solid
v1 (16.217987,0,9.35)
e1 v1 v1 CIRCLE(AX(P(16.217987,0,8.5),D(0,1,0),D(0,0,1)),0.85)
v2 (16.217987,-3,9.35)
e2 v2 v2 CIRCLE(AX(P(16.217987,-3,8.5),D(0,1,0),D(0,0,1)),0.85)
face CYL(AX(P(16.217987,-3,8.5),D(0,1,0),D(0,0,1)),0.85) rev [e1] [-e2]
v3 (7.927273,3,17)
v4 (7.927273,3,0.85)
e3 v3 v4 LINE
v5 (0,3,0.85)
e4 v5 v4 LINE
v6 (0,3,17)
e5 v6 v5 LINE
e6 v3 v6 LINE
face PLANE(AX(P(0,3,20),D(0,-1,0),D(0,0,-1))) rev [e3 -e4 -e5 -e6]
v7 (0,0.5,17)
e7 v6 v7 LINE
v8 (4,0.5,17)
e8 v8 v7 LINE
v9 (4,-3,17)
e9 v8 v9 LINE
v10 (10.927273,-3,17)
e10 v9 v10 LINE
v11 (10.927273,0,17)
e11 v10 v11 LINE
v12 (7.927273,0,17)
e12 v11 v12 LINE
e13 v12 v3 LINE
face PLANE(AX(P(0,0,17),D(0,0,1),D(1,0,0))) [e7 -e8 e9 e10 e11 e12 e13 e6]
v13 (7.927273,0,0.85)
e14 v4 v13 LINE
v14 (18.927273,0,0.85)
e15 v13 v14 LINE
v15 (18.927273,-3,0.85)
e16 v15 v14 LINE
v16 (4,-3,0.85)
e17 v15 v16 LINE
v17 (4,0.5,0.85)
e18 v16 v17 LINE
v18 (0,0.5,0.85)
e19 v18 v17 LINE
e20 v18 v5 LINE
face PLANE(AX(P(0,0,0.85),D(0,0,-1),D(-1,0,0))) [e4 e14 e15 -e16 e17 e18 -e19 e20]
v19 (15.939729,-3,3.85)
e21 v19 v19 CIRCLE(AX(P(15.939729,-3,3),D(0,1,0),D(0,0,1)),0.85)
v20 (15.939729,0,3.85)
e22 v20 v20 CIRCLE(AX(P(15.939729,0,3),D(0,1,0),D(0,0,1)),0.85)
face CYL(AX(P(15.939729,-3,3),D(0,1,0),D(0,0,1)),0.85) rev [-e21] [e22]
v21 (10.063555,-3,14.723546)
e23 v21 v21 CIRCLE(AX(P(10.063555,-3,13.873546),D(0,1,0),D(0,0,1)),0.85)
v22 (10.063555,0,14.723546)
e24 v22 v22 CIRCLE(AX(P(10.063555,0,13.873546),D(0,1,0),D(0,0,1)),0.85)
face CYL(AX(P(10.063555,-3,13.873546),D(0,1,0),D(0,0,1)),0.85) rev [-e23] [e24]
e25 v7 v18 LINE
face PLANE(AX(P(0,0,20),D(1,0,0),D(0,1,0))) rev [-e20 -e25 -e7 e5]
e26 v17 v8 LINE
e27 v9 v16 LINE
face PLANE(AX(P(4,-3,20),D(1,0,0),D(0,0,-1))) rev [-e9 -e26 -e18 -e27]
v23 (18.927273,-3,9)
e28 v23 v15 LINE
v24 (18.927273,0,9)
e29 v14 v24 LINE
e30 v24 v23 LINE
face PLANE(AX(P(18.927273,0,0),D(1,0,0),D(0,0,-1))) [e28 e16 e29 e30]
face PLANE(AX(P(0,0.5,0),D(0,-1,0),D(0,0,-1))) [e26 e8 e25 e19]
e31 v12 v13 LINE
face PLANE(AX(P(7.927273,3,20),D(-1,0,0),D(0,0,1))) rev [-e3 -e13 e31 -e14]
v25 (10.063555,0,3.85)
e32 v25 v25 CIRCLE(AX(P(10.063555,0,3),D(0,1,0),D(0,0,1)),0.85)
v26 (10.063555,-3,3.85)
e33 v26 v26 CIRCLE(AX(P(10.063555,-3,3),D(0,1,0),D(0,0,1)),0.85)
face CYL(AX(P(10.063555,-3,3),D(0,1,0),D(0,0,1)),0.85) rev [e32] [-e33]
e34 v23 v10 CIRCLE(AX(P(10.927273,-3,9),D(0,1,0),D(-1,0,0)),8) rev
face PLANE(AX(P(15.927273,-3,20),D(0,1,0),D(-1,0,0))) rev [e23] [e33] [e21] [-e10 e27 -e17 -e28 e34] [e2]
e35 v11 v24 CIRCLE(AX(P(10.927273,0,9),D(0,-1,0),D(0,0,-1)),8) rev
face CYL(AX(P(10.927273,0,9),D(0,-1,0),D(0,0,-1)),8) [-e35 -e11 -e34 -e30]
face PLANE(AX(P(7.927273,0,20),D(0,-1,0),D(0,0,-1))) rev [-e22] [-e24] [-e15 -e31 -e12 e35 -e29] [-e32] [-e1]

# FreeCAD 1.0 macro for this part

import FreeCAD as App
import Part
import Sketcher
from FreeCAD import Vector
Q = App.Units.Quantity


def edges_at(feature, points):
    """Names of the edges that pass closest to the given points."""
    edges = feature.Shape.Edges
    near = lambda p: min(range(len(edges)), key=lambda i: edges[i].distToShape(Part.Vertex(*p))[0])
    return sorted({f"Edge{near(p) + 1}" for p in points})

doc = App.newDocument("Part")
body = doc.addObject("PartDesign::Body", "Body")

sketch1 = body.newObject("Sketcher::SketchObject", "Sketch")
sketch1.AttachmentSupport = (doc.getObject("XY_Plane"), [""])
sketch1.MapMode = "FlatFace"
sketch1.addGeometry([
    Part.LineSegment(Vector(0, 3, 0), Vector(0, 0, 0)),
    Part.LineSegment(Vector(0, 0, 0), Vector(4, 0, 0)),
    Part.LineSegment(Vector(4, 0, 0), Vector(4, -3, 0)),
    Part.LineSegment(Vector(4, -3, 0), Vector(15.9, -3, 0)),
    Part.LineSegment(Vector(15.9, -3, 0), Vector(15.9, 0, 0)),
    Part.LineSegment(Vector(15.9, 0, 0), Vector(7.9, 0, 0)),
    Part.LineSegment(Vector(7.9, 0, 0), Vector(7.9, 3, 0)),
    Part.LineSegment(Vector(7.9, 3, 0), Vector(0, 3, 0)),
], False)
sketch1.addConstraint([
    Sketcher.Constraint("Coincident", 0, 2, 1, 1),
    Sketcher.Constraint("Coincident", 1, 2, 2, 1),
    Sketcher.Constraint("Coincident", 2, 2, 3, 1),
    Sketcher.Constraint("Coincident", 3, 2, 4, 1),
    Sketcher.Constraint("Coincident", 4, 2, 5, 1),
    Sketcher.Constraint("Coincident", 5, 2, 6, 1),
    Sketcher.Constraint("Coincident", 6, 2, 7, 1),
    Sketcher.Constraint("Coincident", 7, 2, 0, 1),
    Sketcher.Constraint("Vertical", 0),
    Sketcher.Constraint("Horizontal", 1),
    Sketcher.Constraint("Vertical", 2),
    Sketcher.Constraint("Horizontal", 3),
    Sketcher.Constraint("Vertical", 4),
    Sketcher.Constraint("Horizontal", 5),
    Sketcher.Constraint("Vertical", 6),
    Sketcher.Constraint("Horizontal", 7),
    Sketcher.Constraint("Coincident", 0, 2, -1, 1),
    Sketcher.Constraint("PointOnObject", 4, 2, -1),
    Sketcher.Constraint("Equal", 0, 2),
    Sketcher.Constraint("DistanceX", 1, 1, 1, 2, Q("4 mm")),
    Sketcher.Constraint("DistanceX", 5, 2, 5, 1, Q("8 mm")),
    Sketcher.Constraint("DistanceY", 0, 2, 0, 1, Q("3 mm")),
    Sketcher.Constraint("DistanceX", 3, 1, 3, 2, Q("11.927273 mm")),
])
pad1 = body.newObject("PartDesign::Pad", "Pad")
pad1.Profile = sketch1
pad1.Length = 20

sketch2 = body.newObject("Sketcher::SketchObject", "Sketch001")
sketch2.AttachmentSupport = (doc.getObject("XZ_Plane"), [""])
sketch2.MapMode = "FlatFace"
sketch2.addGeometry([
    Part.LineSegment(Vector(8, 12, 0), Vector(8, 20, 0)),
    Part.LineSegment(Vector(8, 20, 0), Vector(16, 20, 0)),
    Part.LineSegment(Vector(16, 20, 0), Vector(16, 12, 0)),
    Part.LineSegment(Vector(16, 12, 0), Vector(8, 12, 0)),
], False)
sketch2.addConstraint([
    Sketcher.Constraint("Coincident", 0, 2, 1, 1),
    Sketcher.Constraint("Coincident", 1, 2, 2, 1),
    Sketcher.Constraint("Coincident", 2, 2, 3, 1),
    Sketcher.Constraint("Coincident", 3, 2, 0, 1),
    Sketcher.Constraint("Vertical", 0),
    Sketcher.Constraint("Horizontal", 1),
    Sketcher.Constraint("Vertical", 2),
    Sketcher.Constraint("Horizontal", 3),
    Sketcher.Constraint("Equal", 3, 0),
    Sketcher.Constraint("DistanceX", 1, 1, 1, 2, Q("8 mm")),
    Sketcher.Constraint("DistanceY", -1, 1, 0, 2, Q("20 mm")),
    Sketcher.Constraint("DistanceX", -1, 1, 0, 2, Q("7.927273 mm")),
])
pocket1 = body.newObject("PartDesign::Pocket", "Pocket")
pocket1.Profile = sketch2
pocket1.Length = 10
pocket1.Reversed = True

sketch3 = body.newObject("Sketcher::SketchObject", "Sketch002")
sketch3.AttachmentSupport = (doc.getObject("XZ_Plane"), [""])
sketch3.MapMode = "FlatFace"
sketch3.addGeometry([
    Part.Circle(Vector(11.9, 3, 0), Vector(0, 0, 1), 1),
    Part.Circle(Vector(11.9, 9, 0), Vector(0, 0, 1), 1),
], False)
sketch3.addConstraint([
    Sketcher.Constraint("Equal", 0, 1),
    Sketcher.Constraint("Vertical", 0, 3, 1, 3),
    Sketcher.Constraint("Diameter", 0, Q("2 mm")),
    Sketcher.Constraint("DistanceY", -1, 1, 0, 3, Q("3 mm")),
    Sketcher.Constraint("DistanceY", -1, 1, 1, 3, Q("9 mm")),
    Sketcher.Constraint("DistanceX", -1, 1, 0, 3, Q("11.939729 mm")),
])
pocket2 = body.newObject("PartDesign::Pocket", "Pocket001")
pocket2.Profile = sketch3
pocket2.Length = 10
pocket2.Reversed = True

sketch4 = body.newObject("Sketcher::SketchObject", "Sketch003")
sketch4.AttachmentSupport = (doc.getObject("XZ_Plane"), [""])
sketch4.MapMode = "FlatFace"
sketch4.addGeometry([
    Part.LineSegment(Vector(0, 20, 0), Vector(0, 0, 0)),
    Part.LineSegment(Vector(0, 0, 0), Vector(4, 0, 0)),
    Part.LineSegment(Vector(4, 0, 0), Vector(4, 20, 0)),
    Part.LineSegment(Vector(4, 20, 0), Vector(0, 20, 0)),
], False)
sketch4.addConstraint([
    Sketcher.Constraint("Coincident", 0, 2, 1, 1),
    Sketcher.Constraint("Coincident", 1, 2, 2, 1),
    Sketcher.Constraint("Coincident", 2, 2, 3, 1),
    Sketcher.Constraint("Coincident", 3, 2, 0, 1),
    Sketcher.Constraint("Vertical", 0),
    Sketcher.Constraint("Horizontal", 1),
    Sketcher.Constraint("Vertical", 2),
    Sketcher.Constraint("Horizontal", 3),
    Sketcher.Constraint("Coincident", 0, 2, -1, 1),
    Sketcher.Constraint("DistanceX", 1, 1, 1, 2, Q("4 mm")),
    Sketcher.Constraint("DistanceY", 0, 2, 0, 1, Q("20 mm")),
])
pocket3 = body.newObject("PartDesign::Pocket", "Pocket002")
pocket3.Profile = sketch4
pocket3.Length = 0.5

sketch5 = body.newObject("Sketcher::SketchObject", "Sketch004")
sketch5.AttachmentSupport = (doc.getObject("XY_Plane"), [""])
sketch5.MapMode = "FlatFace"
sketch5.AttachmentOffset = App.Placement(Vector(0, 0, 12), App.Rotation())
sketch5.addGeometry([
    Part.LineSegment(Vector(7.9, 0, 0), Vector(7.9, -3, 0)),
    Part.LineSegment(Vector(7.9, -3, 0), Vector(15.9, -3, 0)),
    Part.LineSegment(Vector(15.9, -3, 0), Vector(15.9, 0, 0)),
    Part.LineSegment(Vector(15.9, 0, 0), Vector(7.9, 0, 0)),
], False)
sketch5.addConstraint([
    Sketcher.Constraint("Coincident", 0, 2, 1, 1),
    Sketcher.Constraint("Coincident", 1, 2, 2, 1),
    Sketcher.Constraint("Coincident", 2, 2, 3, 1),
    Sketcher.Constraint("Coincident", 3, 2, 0, 1),
    Sketcher.Constraint("Vertical", 0),
    Sketcher.Constraint("Horizontal", 1),
    Sketcher.Constraint("Vertical", 2),
    Sketcher.Constraint("Horizontal", 3),
    Sketcher.Constraint("PointOnObject", 2, 2, -1),
    Sketcher.Constraint("DistanceX", 1, 1, 1, 2, Q("8 mm")),
    Sketcher.Constraint("DistanceY", 0, 2, 0, 1, Q("3 mm")),
    Sketcher.Constraint("DistanceX", -1, 1, 0, 2, Q("7.927273 mm")),
])
pad2 = body.newObject("PartDesign::Pad", "Pad001")
pad2.Profile = sketch5
pad2.Length = 8

sketch6 = body.newObject("Sketcher::SketchObject", "Sketch005")
sketch6.AttachmentSupport = (doc.getObject("XZ_Plane"), [""])
sketch6.MapMode = "FlatFace"
sketch6.addGeometry(Part.Circle(Vector(11.9, 9, 0), Vector(0, 0, 1), 1), False)
sketch6.addConstraint([
    Sketcher.Constraint("Diameter", 0, Q("2 mm")),
    Sketcher.Constraint("DistanceY", -1, 1, 0, 3, Q("9 mm")),
    Sketcher.Constraint("DistanceX", -1, 1, 0, 3, Q("11.939729 mm")),
])
pad3 = body.newObject("PartDesign::Pad", "Pad002")
pad3.Profile = sketch6
pad3.Length = 3

sketch7 = body.newObject("Sketcher::SketchObject", "Sketch006")
sketch7.AttachmentSupport = (doc.getObject("YZ_Plane"), [""])
sketch7.MapMode = "FlatFace"
sketch7.AttachmentOffset = App.Placement(Vector(0, 0, 15.927273), App.Rotation())
sketch7.addGeometry([
    Part.LineSegment(Vector(0, 20, 0), Vector(-3, 20, 0)),
    Part.LineSegment(Vector(-3, 20, 0), Vector(-3, 0, 0)),
    Part.LineSegment(Vector(-3, 0, 0), Vector(0, 0, 0)),
    Part.LineSegment(Vector(0, 0, 0), Vector(0, 20, 0)),
], False)
sketch7.addConstraint([
    Sketcher.Constraint("Coincident", 0, 2, 1, 1),
    Sketcher.Constraint("Coincident", 1, 2, 2, 1),
    Sketcher.Constraint("Coincident", 2, 2, 3, 1),
    Sketcher.Constraint("Coincident", 3, 2, 0, 1),
    Sketcher.Constraint("Horizontal", 0),
    Sketcher.Constraint("Vertical", 1),
    Sketcher.Constraint("Horizontal", 2),
    Sketcher.Constraint("Vertical", 3),
    Sketcher.Constraint("Coincident", 2, 2, -1, 1),
    Sketcher.Constraint("DistanceX", 0, 2, 0, 1, Q("3 mm")),
    Sketcher.Constraint("DistanceY", 1, 2, 1, 1, Q("20 mm")),
])
pad4 = body.newObject("PartDesign::Pad", "Pad003")
pad4.Profile = sketch7
pad4.Length = 3

sketch8 = body.newObject("Sketcher::SketchObject", "Sketch007")
sketch8.AttachmentSupport = (doc.getObject("XY_Plane"), [""])
sketch8.MapMode = "FlatFace"
sketch8.AttachmentOffset = App.Placement(Vector(0, 0, 20), App.Rotation())
sketch8.addGeometry([
    Part.LineSegment(Vector(-1, 4, 0), Vector(-1, -3, 0)),
    Part.LineSegment(Vector(-1, -3, 0), Vector(20, -3, 0)),
    Part.LineSegment(Vector(20, -3, 0), Vector(20, 4, 0)),
    Part.LineSegment(Vector(20, 4, 0), Vector(-1, 4, 0)),
], False)
sketch8.addConstraint([
    Sketcher.Constraint("Coincident", 0, 2, 1, 1),
    Sketcher.Constraint("Coincident", 1, 2, 2, 1),
    Sketcher.Constraint("Coincident", 2, 2, 3, 1),
    Sketcher.Constraint("Coincident", 3, 2, 0, 1),
    Sketcher.Constraint("Vertical", 0),
    Sketcher.Constraint("Horizontal", 1),
    Sketcher.Constraint("Vertical", 2),
    Sketcher.Constraint("Horizontal", 3),
    Sketcher.Constraint("DistanceX", 0, 2, -1, 1, Q("1.416601 mm")),
    Sketcher.Constraint("DistanceX", 1, 1, 1, 2, Q("21.136905 mm")),
    Sketcher.Constraint("DistanceY", 0, 2, 0, 1, Q("7.074305 mm")),
    Sketcher.Constraint("DistanceY", -1, 1, 2, 2, Q("3.612411 mm")),
])
pocket4 = body.newObject("PartDesign::Pocket", "Pocket003")
pocket4.Profile = sketch8
pocket4.Length = 3

sketch9 = body.newObject("Sketcher::SketchObject", "Sketch008")
sketch9.AttachmentSupport = (doc.getObject("XZ_Plane"), [""])
sketch9.MapMode = "FlatFace"
sketch9.addGeometry(Part.Circle(Vector(10.1, 13.9, 0), Vector(0, 0, 1), 0.8), False)
sketch9.addConstraint([
    Sketcher.Constraint("Diameter", 0, Q("1.7 mm")),
    Sketcher.Constraint("DistanceX", -1, 1, 0, 3, Q("10.063555 mm")),
    Sketcher.Constraint("DistanceY", -1, 1, 0, 3, Q("13.873546 mm")),
])
pocket5 = body.newObject("PartDesign::Pocket", "Pocket004")
pocket5.Profile = sketch9
pocket5.Length = 3
pocket5.Reversed = True
doc.recompute()

fillet = body.newObject("PartDesign::Fillet", "Fillet")
fillet.Base = (pocket5, edges_at(pocket5, [(18.927, -1.5, 17)]))
fillet.Radius = 8

sketch10 = body.newObject("Sketcher::SketchObject", "Sketch009")
sketch10.AttachmentSupport = (doc.getObject("XZ_Plane"), [""])
sketch10.MapMode = "FlatFace"
sketch10.addGeometry([
    Part.Circle(Vector(10.1, 13.9, 0), Vector(0, 0, 1), 0.8),
    Part.Circle(Vector(15.9, 3, 0), Vector(0, 0, 1), 0.8),
    Part.Circle(Vector(16.2, 8.5, 0), Vector(0, 0, 1), 0.8),
    Part.Circle(Vector(10.1, 3, 0), Vector(0, 0, 1), 0.8),
], False)
sketch10.addConstraint([
    Sketcher.Constraint("Equal", 0, 1),
    Sketcher.Constraint("Equal", 1, 2),
    Sketcher.Constraint("Equal", 2, 3),
    Sketcher.Constraint("Horizontal", 1, 3, 3, 3),
    Sketcher.Constraint("Vertical", 0, 3, 3, 3),
    Sketcher.Constraint("Diameter", 0, Q("1.7 mm")),
    Sketcher.Constraint("DistanceY", -1, 1, 1, 3, Q("3 mm")),
    Sketcher.Constraint("DistanceY", -1, 1, 2, 3, Q("8.5 mm")),
    Sketcher.Constraint("DistanceX", -1, 1, 1, 3, Q("15.939729 mm")),
    Sketcher.Constraint("DistanceX", 1, 3, 2, 3, Q("0.278258 mm")),
    Sketcher.Constraint("DistanceX", -1, 1, 0, 3, Q("10.063555 mm")),
    Sketcher.Constraint("DistanceY", -1, 1, 0, 3, Q("13.873546 mm")),
])
pocket6 = body.newObject("PartDesign::Pocket", "Pocket005")
pocket6.Profile = sketch10
pocket6.Length = 3
pocket6.Reversed = True

sketch11 = body.newObject("Sketcher::SketchObject", "Sketch010")
sketch11.AttachmentSupport = (doc.getObject("XY_Plane"), [""])
sketch11.MapMode = "FlatFace"
sketch11.addGeometry([
    Part.LineSegment(Vector(22, 5, 0), Vector(22, -4, 0)),
    Part.LineSegment(Vector(22, -4, 0), Vector(-1, -4, 0)),
    Part.LineSegment(Vector(-1, -4, 0), Vector(-1, 5, 0)),
    Part.LineSegment(Vector(-1, 5, 0), Vector(22, 5, 0)),
], False)
sketch11.addConstraint([
    Sketcher.Constraint("Coincident", 0, 2, 1, 1),
    Sketcher.Constraint("Coincident", 1, 2, 2, 1),
    Sketcher.Constraint("Coincident", 2, 2, 3, 1),
    Sketcher.Constraint("Coincident", 3, 2, 0, 1),
    Sketcher.Constraint("Vertical", 0),
    Sketcher.Constraint("Horizontal", 1),
    Sketcher.Constraint("Vertical", 2),
    Sketcher.Constraint("Horizontal", 3),
    Sketcher.Constraint("DistanceY", 0, 2, 0, 1, Q("8.88051 mm")),
    Sketcher.Constraint("DistanceX", 1, 2, 1, 1, Q("22.706583 mm")),
    Sketcher.Constraint("DistanceX", -1, 1, 0, 2, Q("21.548011 mm")),
    Sketcher.Constraint("DistanceY", 0, 2, -1, 1, Q("4.214479 mm")),
])
pocket7 = body.newObject("PartDesign::Pocket", "Pocket006")
pocket7.Profile = sketch11
pocket7.Length = 0.85
pocket7.Reversed = True

sketch12 = body.newObject("Sketcher::SketchObject", "Sketch011")
sketch12.AttachmentSupport = (doc.getObject("XZ_Plane"), [""])
sketch12.MapMode = "FlatFace"
sketch12.addGeometry(Part.Circle(Vector(11.9, 3, 0), Vector(0, 0, 1), 1), False)
sketch12.addConstraint([
    Sketcher.Constraint("Diameter", 0, Q("2 mm")),
    Sketcher.Constraint("DistanceY", -1, 1, 0, 3, Q("3 mm")),
    Sketcher.Constraint("DistanceX", -1, 1, 0, 3, Q("11.939729 mm")),
])
pad5 = body.newObject("PartDesign::Pad", "Pad004")
pad5.Profile = sketch12
pad5.Length = 3

doc.recompute()
